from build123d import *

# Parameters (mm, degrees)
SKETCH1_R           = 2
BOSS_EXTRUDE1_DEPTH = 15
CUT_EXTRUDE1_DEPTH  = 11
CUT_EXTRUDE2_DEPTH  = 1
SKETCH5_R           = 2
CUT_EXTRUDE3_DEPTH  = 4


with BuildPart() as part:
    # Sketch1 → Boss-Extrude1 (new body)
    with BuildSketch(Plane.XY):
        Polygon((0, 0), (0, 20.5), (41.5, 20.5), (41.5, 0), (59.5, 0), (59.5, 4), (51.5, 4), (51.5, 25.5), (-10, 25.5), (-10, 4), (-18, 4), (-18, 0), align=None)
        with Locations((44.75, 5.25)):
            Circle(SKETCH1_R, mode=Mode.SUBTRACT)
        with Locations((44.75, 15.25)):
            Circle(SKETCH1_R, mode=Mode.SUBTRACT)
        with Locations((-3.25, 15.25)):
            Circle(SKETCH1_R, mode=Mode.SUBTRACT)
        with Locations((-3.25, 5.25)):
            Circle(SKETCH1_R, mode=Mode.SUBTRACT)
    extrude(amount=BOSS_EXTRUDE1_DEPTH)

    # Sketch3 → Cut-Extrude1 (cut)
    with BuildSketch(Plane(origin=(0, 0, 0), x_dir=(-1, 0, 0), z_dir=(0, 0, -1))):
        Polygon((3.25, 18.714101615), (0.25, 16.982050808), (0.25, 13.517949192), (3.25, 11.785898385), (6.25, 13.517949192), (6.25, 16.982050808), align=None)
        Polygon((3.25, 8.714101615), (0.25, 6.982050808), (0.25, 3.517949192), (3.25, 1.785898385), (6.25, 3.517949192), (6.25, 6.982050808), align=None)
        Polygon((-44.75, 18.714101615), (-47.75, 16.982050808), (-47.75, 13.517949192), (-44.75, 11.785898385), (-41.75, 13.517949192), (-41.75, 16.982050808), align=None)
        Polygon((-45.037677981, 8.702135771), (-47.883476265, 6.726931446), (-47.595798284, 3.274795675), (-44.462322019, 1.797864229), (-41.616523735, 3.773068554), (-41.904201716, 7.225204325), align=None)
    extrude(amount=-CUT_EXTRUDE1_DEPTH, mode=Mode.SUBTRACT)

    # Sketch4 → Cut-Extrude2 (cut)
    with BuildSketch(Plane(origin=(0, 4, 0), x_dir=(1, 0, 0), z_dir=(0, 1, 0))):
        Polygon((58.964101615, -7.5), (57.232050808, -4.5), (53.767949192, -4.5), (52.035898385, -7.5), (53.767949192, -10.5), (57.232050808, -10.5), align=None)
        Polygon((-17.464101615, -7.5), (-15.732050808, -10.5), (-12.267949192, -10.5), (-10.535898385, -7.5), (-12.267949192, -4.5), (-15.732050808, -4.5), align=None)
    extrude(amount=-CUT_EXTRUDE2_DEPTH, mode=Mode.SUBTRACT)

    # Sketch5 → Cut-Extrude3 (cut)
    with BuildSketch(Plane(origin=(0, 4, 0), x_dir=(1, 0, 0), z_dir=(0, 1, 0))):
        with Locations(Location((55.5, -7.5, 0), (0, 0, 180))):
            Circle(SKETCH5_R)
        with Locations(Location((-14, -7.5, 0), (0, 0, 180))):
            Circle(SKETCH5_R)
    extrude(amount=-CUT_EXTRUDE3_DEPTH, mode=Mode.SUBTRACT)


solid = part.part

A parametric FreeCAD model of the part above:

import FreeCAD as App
import Part
import Sketcher
from FreeCAD import Vector
Q = App.Units.Quantity

doc = App.newDocument("Part")
body = doc.addObject("PartDesign::Body", "Body")

# Sketch on XY plane
sketch1 = body.newObject("Sketcher::SketchObject", "Sketch")
sketch1.AttachmentSupport = (doc.getObject("XY_Plane"), [""])
sketch1.MapMode = "FlatFace"
sketch1.addGeometry([
    Part.LineSegment(Vector(0, 0, 0), Vector(0, 20.5, 0)),  # 0
    Part.LineSegment(Vector(0, 20.5, 0), Vector(41.5, 20.5, 0)),  # 1
    Part.LineSegment(Vector(41.5, 20.5, 0), Vector(41.5, 0, 0)),  # 2
    Part.LineSegment(Vector(41.5, 0, 0), Vector(59.5, 0, 0)),  # 3
    Part.LineSegment(Vector(59.5, 0, 0), Vector(59.5, 4, 0)),  # 4
    Part.LineSegment(Vector(59.5, 4, 0), Vector(51.5, 4, 0)),  # 5
    Part.LineSegment(Vector(51.5, 4, 0), Vector(51.5, 25.5, 0)),  # 6
    Part.LineSegment(Vector(51.5, 25.5, 0), Vector(-10, 25.5, 0)),  # 7
    Part.LineSegment(Vector(-10, 25.5, 0), Vector(-10, 4, 0)),  # 8
    Part.LineSegment(Vector(-10, 4, 0), Vector(-18, 4, 0)),  # 9
    Part.LineSegment(Vector(-18, 4, 0), Vector(-18, 0, 0)),  # 10
    Part.LineSegment(Vector(-18, 0, 0), Vector(0, 0, 0)),  # 11
    Part.Circle(Vector(-3.2, 5.2, 0), Vector(0, 0, 1), 2),  # 12
    Part.Circle(Vector(44.8, 5.2, 0), Vector(0, 0, 1), 2),  # 13
    Part.Circle(Vector(-3.2, 15.2, 0), Vector(0, 0, 1), 2),  # 14
    Part.Circle(Vector(44.8, 15.2, 0), Vector(0, 0, 1), 2),  # 15
], False)
sketch1.addConstraint([
    Sketcher.Constraint("Coincident", 0, 2, 1, 1),
    Sketcher.Constraint("Coincident", 1, 2, 2, 1),
    Sketcher.Constraint("Coincident", 2, 2, 3, 1),
    Sketcher.Constraint("Coincident", 3, 2, 4, 1),
    Sketcher.Constraint("Coincident", 4, 2, 5, 1),
    Sketcher.Constraint("Coincident", 5, 2, 6, 1),
    Sketcher.Constraint("Coincident", 6, 2, 7, 1),
    Sketcher.Constraint("Coincident", 7, 2, 8, 1),
    Sketcher.Constraint("Coincident", 8, 2, 9, 1),
    Sketcher.Constraint("Coincident", 9, 2, 10, 1),
    Sketcher.Constraint("Coincident", 10, 2, 11, 1),
    Sketcher.Constraint("Coincident", 11, 2, 0, 1),
    Sketcher.Constraint("Vertical", 0),
    Sketcher.Constraint("Horizontal", 1),
    Sketcher.Constraint("Vertical", 2),
    Sketcher.Constraint("Horizontal", 3),
    Sketcher.Constraint("Vertical", 4),
    Sketcher.Constraint("Horizontal", 5),
    Sketcher.Constraint("Vertical", 6),
    Sketcher.Constraint("Horizontal", 7),
    Sketcher.Constraint("Vertical", 8),
    Sketcher.Constraint("Horizontal", 9),
    Sketcher.Constraint("Vertical", 10),
    Sketcher.Constraint("Horizontal", 11),
    Sketcher.Constraint("Coincident", 11, 2, -1, 1),
    Sketcher.Constraint("Equal", 12, 13),
    Sketcher.Constraint("Equal", 13, 14),
    Sketcher.Constraint("Equal", 14, 15),
    Sketcher.Constraint("PointOnObject", 2, 2, -1),
    Sketcher.Constraint("Horizontal", 12, 3, 13, 3),
    Sketcher.Constraint("Horizontal", 14, 3, 15, 3),
    Sketcher.Constraint("Horizontal", 5, 2, 8, 2),
    Sketcher.Constraint("Vertical", 12, 3, 14, 3),
    Sketcher.Constraint("Vertical", 13, 3, 15, 3),
    Sketcher.Constraint("Equal", 5, 9),
    Sketcher.Constraint("Equal", 3, 11),
    Sketcher.Constraint("Diameter", 12, 4.0),
    Sketcher.Constraint("DistanceX", 3, 1, 3, 2, 18.0),
    Sketcher.Constraint("DistanceX", 5, 2, 5, 1, 8.0),
    Sketcher.Constraint("DistanceY", 4, 1, 4, 2, 4.0),
    Sketcher.Constraint("DistanceX", 1, 1, 1, 2, 41.5),
    Sketcher.Constraint("DistanceY", 0, 1, 0, 2, 20.5),
    Sketcher.Constraint("DistanceY", 6, 1, 6, 2, 21.5),
    Sketcher.Constraint("DistanceX", 12, 3, 13, 3, 48.0),
    Sketcher.Constraint("DistanceY", 12, 3, 14, 3, 10.0),
    Sketcher.Constraint("DistanceX", 12, 3, -1, 1, 3.25),
    Sketcher.Constraint("DistanceY", -1, 1, 12, 3, 5.25),
])
pad1 = body.newObject("PartDesign::Pad", "Pad")
pad1.Profile = sketch1
pad1.Length = 15

# Sketch on XY plane
sketch2 = body.newObject("Sketcher::SketchObject", "Sketch001")
sketch2.AttachmentSupport = (doc.getObject("XY_Plane"), [""])
sketch2.MapMode = "FlatFace"
sketch2.addGeometry([
    Part.LineSegment(Vector(-3.2, 18.7, 0), Vector(-0.2, 17, 0)),  # 0
    Part.LineSegment(Vector(-0.2, 17, 0), Vector(-0.2, 13.5, 0)),  # 1
    Part.LineSegment(Vector(-0.2, 13.5, 0), Vector(-3.2, 11.8, 0)),  # 2
    Part.LineSegment(Vector(-3.2, 11.8, 0), Vector(-6.2, 13.5, 0)),  # 3
    Part.LineSegment(Vector(-6.2, 13.5, 0), Vector(-6.2, 17, 0)),  # 4
    Part.LineSegment(Vector(-6.2, 17, 0), Vector(-3.2, 18.7, 0)),  # 5
    Part.LineSegment(Vector(-3.2, 8.7, 0), Vector(-0.2, 7, 0)),  # 6
    Part.LineSegment(Vector(-0.2, 7, 0), Vector(-0.2, 3.5, 0)),  # 7
    Part.LineSegment(Vector(-0.2, 3.5, 0), Vector(-3.2, 1.8, 0)),  # 8
    Part.LineSegment(Vector(-3.2, 1.8, 0), Vector(-6.2, 3.5, 0)),  # 9
    Part.LineSegment(Vector(-6.2, 3.5, 0), Vector(-6.2, 7, 0)),  # 10
    Part.LineSegment(Vector(-6.2, 7, 0), Vector(-3.2, 8.7, 0)),  # 11
    Part.LineSegment(Vector(44.8, 18.7, 0), Vector(47.8, 17, 0)),  # 12
    Part.LineSegment(Vector(47.8, 17, 0), Vector(47.8, 13.5, 0)),  # 13
    Part.LineSegment(Vector(47.8, 13.5, 0), Vector(44.8, 11.8, 0)),  # 14
    Part.LineSegment(Vector(44.8, 11.8, 0), Vector(41.8, 13.5, 0)),  # 15
    Part.LineSegment(Vector(41.8, 13.5, 0), Vector(41.8, 17, 0)),  # 16
    Part.LineSegment(Vector(41.8, 17, 0), Vector(44.8, 18.7, 0)),  # 17
    Part.LineSegment(Vector(45, 8.7, 0), Vector(47.9, 6.7, 0)),  # 18
    Part.LineSegment(Vector(47.9, 6.7, 0), Vector(47.6, 3.3, 0)),  # 19
    Part.LineSegment(Vector(47.6, 3.3, 0), Vector(44.5, 1.8, 0)),  # 20
    Part.LineSegment(Vector(44.5, 1.8, 0), Vector(41.6, 3.8, 0)),  # 21
    Part.LineSegment(Vector(41.6, 3.8, 0), Vector(41.9, 7.2, 0)),  # 22
    Part.LineSegment(Vector(41.9, 7.2, 0), Vector(45, 8.7, 0)),  # 23
], False)
sketch2.addConstraint([
    Sketcher.Constraint("Coincident", 0, 2, 1, 1),
    Sketcher.Constraint("Coincident", 1, 2, 2, 1),
    Sketcher.Constraint("Coincident", 2, 2, 3, 1),
    Sketcher.Constraint("Coincident", 3, 2, 4, 1),
    Sketcher.Constraint("Coincident", 4, 2, 5, 1),
    Sketcher.Constraint("Coincident", 5, 2, 0, 1),
    Sketcher.Constraint("Coincident", 6, 2, 7, 1),
    Sketcher.Constraint("Coincident", 7, 2, 8, 1),
    Sketcher.Constraint("Coincident", 8, 2, 9, 1),
    Sketcher.Constraint("Coincident", 9, 2, 10, 1),
    Sketcher.Constraint("Coincident", 10, 2, 11, 1),
    Sketcher.Constraint("Coincident", 11, 2, 6, 1),
    Sketcher.Constraint("Coincident", 12, 2, 13, 1),
    Sketcher.Constraint("Coincident", 13, 2, 14, 1),
    Sketcher.Constraint("Coincident", 14, 2, 15, 1),
    Sketcher.Constraint("Coincident", 15, 2, 16, 1),
    Sketcher.Constraint("Coincident", 16, 2, 17, 1),
    Sketcher.Constraint("Coincident", 17, 2, 12, 1),
    Sketcher.Constraint("Coincident", 18, 2, 19, 1),
    Sketcher.Constraint("Coincident", 19, 2, 20, 1),
    Sketcher.Constraint("Coincident", 20, 2, 21, 1),
    Sketcher.Constraint("Coincident", 21, 2, 22, 1),
    Sketcher.Constraint("Coincident", 22, 2, 23, 1),
    Sketcher.Constraint("Coincident", 23, 2, 18, 1),
    Sketcher.Constraint("Vertical", 1),
    Sketcher.Constraint("Vertical", 4),
    Sketcher.Constraint("Vertical", 7),
    Sketcher.Constraint("Vertical", 10),
    Sketcher.Constraint("Vertical", 13),
    Sketcher.Constraint("Vertical", 16),
    Sketcher.Constraint("Parallel", 0, 3),
    Sketcher.Constraint("Parallel", 2, 5),
    Sketcher.Constraint("Parallel", 3, 6),
    Sketcher.Constraint("Parallel", 5, 8),
    Sketcher.Constraint("Parallel", 6, 9),
    Sketcher.Constraint("Parallel", 8, 11),
    Sketcher.Constraint("Parallel", 9, 12),
    Sketcher.Constraint("Parallel", 11, 14),
    Sketcher.Constraint("Parallel", 12, 15),
    Sketcher.Constraint("Parallel", 14, 17),
    Sketcher.Constraint("Parallel", 18, 21),
    Sketcher.Constraint("Parallel", 19, 22),
    Sketcher.Constraint("Parallel", 20, 23),
    Sketcher.Constraint("Horizontal", 1, 2, 3, 2),
    Sketcher.Constraint("Horizontal", 0, 2, 4, 2),
    Sketcher.Constraint("Horizontal", 7, 2, 9, 2),
    Sketcher.Constraint("Horizontal", 6, 2, 10, 2),
    Sketcher.Constraint("Horizontal", 4, 2, 12, 2),
    Sketcher.Constraint("Horizontal", 3, 2, 13, 2),
    Sketcher.Constraint("Horizontal", 2, 2, 14, 2),
    Sketcher.Constraint("Horizontal", 13, 2, 15, 2),
    Sketcher.Constraint("Horizontal", 12, 2, 16, 2),
    Sketcher.Constraint("Vertical", 2, 2, 5, 2),
    Sketcher.Constraint("Vertical", 1, 2, 6, 2),
    Sketcher.Constraint("Vertical", 5, 2, 8, 2),
    Sketcher.Constraint("Equal", 4, 7),
    Sketcher.Constraint("Equal", 17, 18),
    Sketcher.Constraint("Equal", 18, 19),
    Sketcher.Constraint("Equal", 19, 20),
    Sketcher.Constraint("Equal", 20, 21),
    Sketcher.Constraint("Angle", 0, Q("-30 deg")),
    Sketcher.Constraint("DistanceX", 2, 2, 1, 2, 3.0),
    Sketcher.Constraint("DistanceY", 6, 2, 0, 2, 10.0),
    Sketcher.Constraint("DistanceX", 0, 2, 12, 2, 48.0),
    Sketcher.Constraint("DistanceX", 0, 2, -1, 1, 0.25),
    Sketcher.Constraint("DistanceY", 1, 2, 1, 1, 3.464102),
    Sketcher.Constraint("DistanceY", -1, 1, 2, 2, 11.785898),
    Sketcher.Constraint("DistanceX", -1, 1, 19, 2, 47.595798),
    Sketcher.Constraint("DistanceX", -1, 1, 22, 2, 41.904202),
    Sketcher.Constraint("DistanceX", 21, 2, 20, 2, 2.845798),
    Sketcher.Constraint("DistanceY", -1, 1, 18, 2, 6.726931),
    Sketcher.Constraint("DistanceY", -1, 1, 21, 2, 3.773069),
])
pocket1 = body.newObject("PartDesign::Pocket", "Pocket")
pocket1.Profile = sketch2
pocket1.Length = 11
pocket1.Reversed = True

# Sketch on XZ plane
sketch3 = body.newObject("Sketcher::SketchObject", "Sketch002")
sketch3.AttachmentSupport = (doc.getObject("XZ_Plane"), [""])
sketch3.MapMode = "FlatFace"
sketch3.AttachmentOffset = App.Placement(Vector(0, 0, -4), App.Rotation())
sketch3.addGeometry([
    Part.LineSegment(Vector(59, 7.5, 0), Vector(57.2, 4.5, 0)),  # 0
    Part.LineSegment(Vector(57.2, 4.5, 0), Vector(53.8, 4.5, 0)),  # 1
    Part.LineSegment(Vector(53.8, 4.5, 0), Vector(52, 7.5, 0)),  # 2
    Part.LineSegment(Vector(52, 7.5, 0), Vector(53.8, 10.5, 0)),  # 3
    Part.LineSegment(Vector(53.8, 10.5, 0), Vector(57.2, 10.5, 0)),  # 4
    Part.LineSegment(Vector(57.2, 10.5, 0), Vector(59, 7.5, 0)),  # 5
    Part.LineSegment(Vector(-17.5, 7.5, 0), Vector(-15.7, 10.5, 0)),  # 6
    Part.LineSegment(Vector(-15.7, 10.5, 0), Vector(-12.3, 10.5, 0)),  # 7
    Part.LineSegment(Vector(-12.3, 10.5, 0), Vector(-10.5, 7.5, 0)),  # 8
    Part.LineSegment(Vector(-10.5, 7.5, 0), Vector(-12.3, 4.5, 0)),  # 9
    Part.LineSegment(Vector(-12.3, 4.5, 0), Vector(-15.7, 4.5, 0)),  # 10
    Part.LineSegment(Vector(-15.7, 4.5, 0), Vector(-17.5, 7.5, 0)),  # 11
], False)
sketch3.addConstraint([
    Sketcher.Constraint("Coincident", 0, 2, 1, 1),
    Sketcher.Constraint("Coincident", 1, 2, 2, 1),
    Sketcher.Constraint("Coincident", 2, 2, 3, 1),
    Sketcher.Constraint("Coincident", 3, 2, 4, 1),
    Sketcher.Constraint("Coincident", 4, 2, 5, 1),
    Sketcher.Constraint("Coincident", 5, 2, 0, 1),
    Sketcher.Constraint("Coincident", 6, 2, 7, 1),
    Sketcher.Constraint("Coincident", 7, 2, 8, 1),
    Sketcher.Constraint("Coincident", 8, 2, 9, 1),
    Sketcher.Constraint("Coincident", 9, 2, 10, 1),
    Sketcher.Constraint("Coincident", 10, 2, 11, 1),
    Sketcher.Constraint("Coincident", 11, 2, 6, 1),
    Sketcher.Constraint("Horizontal", 1),
    Sketcher.Constraint("Horizontal", 4),
    Sketcher.Constraint("Horizontal", 7),
    Sketcher.Constraint("Horizontal", 10),
    Sketcher.Constraint("Parallel", 0, 3),
    Sketcher.Constraint("Parallel", 2, 5),
    Sketcher.Constraint("Parallel", 3, 6),
    Sketcher.Constraint("Parallel", 5, 8),
    Sketcher.Constraint("Parallel", 6, 9),
    Sketcher.Constraint("Parallel", 8, 11),
    Sketcher.Constraint("Horizontal", 2, 2, 5, 2),
    Sketcher.Constraint("Horizontal", 4, 2, 6, 2),
    Sketcher.Constraint("Horizontal", 5, 2, 8, 2),
    Sketcher.Constraint("Horizontal", 1, 2, 9, 2),
    Sketcher.Constraint("Horizontal", 8, 2, 11, 2),
    Sketcher.Constraint("Vertical", 1, 2, 3, 2),
    Sketcher.Constraint("Vertical", 0, 2, 4, 2),
    Sketcher.Constraint("Equal", 4, 7),
    Sketcher.Constraint("Angle", 0, Q("-120 deg")),
    Sketcher.Constraint("DistanceY", 1, 2, 2, 2, 3.0),
    Sketcher.Constraint("DistanceY", -1, 1, 0, 2, 4.5),
    Sketcher.Constraint("DistanceX", 6, 2, 3, 2, 69.5),
    Sketcher.Constraint("DistanceX", 1, 2, 1, 1, 3.464102),
    Sketcher.Constraint("DistanceX", -1, 1, 2, 2, 52.035898),
])
pocket2 = body.newObject("PartDesign::Pocket", "Pocket001")
pocket2.Profile = sketch3
pocket2.Length = 1
pocket2.Reversed = True

# Sketch on XZ plane
sketch4 = body.newObject("Sketcher::SketchObject", "Sketch003")
sketch4.AttachmentSupport = (doc.getObject("XZ_Plane"), [""])
sketch4.MapMode = "FlatFace"
sketch4.AttachmentOffset = App.Placement(Vector(0, 0, -4), App.Rotation())
sketch4.addGeometry([
    Part.Circle(Vector(55.5, 7.5, 0), Vector(0, 0, 1), 2),
    Part.Circle(Vector(-14, 7.5, 0), Vector(0, 0, 1), 2),
], False)
sketch4.addConstraint([
    Sketcher.Constraint("Equal", 0, 1),
    Sketcher.Constraint("Horizontal", 0, 3, 1, 3),
    Sketcher.Constraint("Diameter", 0, 4.0),
    Sketcher.Constraint("DistanceX", 1, 3, -1, 1, 14.0),
    Sketcher.Constraint("DistanceX", -1, 1, 0, 3, 55.5),
    Sketcher.Constraint("DistanceY", -1, 1, 0, 3, 7.5),
])
pocket3 = body.newObject("PartDesign::Pocket", "Pocket002")
pocket3.Profile = sketch4
pocket3.Length = 4
pocket3.Reversed = True

doc.recompute()
